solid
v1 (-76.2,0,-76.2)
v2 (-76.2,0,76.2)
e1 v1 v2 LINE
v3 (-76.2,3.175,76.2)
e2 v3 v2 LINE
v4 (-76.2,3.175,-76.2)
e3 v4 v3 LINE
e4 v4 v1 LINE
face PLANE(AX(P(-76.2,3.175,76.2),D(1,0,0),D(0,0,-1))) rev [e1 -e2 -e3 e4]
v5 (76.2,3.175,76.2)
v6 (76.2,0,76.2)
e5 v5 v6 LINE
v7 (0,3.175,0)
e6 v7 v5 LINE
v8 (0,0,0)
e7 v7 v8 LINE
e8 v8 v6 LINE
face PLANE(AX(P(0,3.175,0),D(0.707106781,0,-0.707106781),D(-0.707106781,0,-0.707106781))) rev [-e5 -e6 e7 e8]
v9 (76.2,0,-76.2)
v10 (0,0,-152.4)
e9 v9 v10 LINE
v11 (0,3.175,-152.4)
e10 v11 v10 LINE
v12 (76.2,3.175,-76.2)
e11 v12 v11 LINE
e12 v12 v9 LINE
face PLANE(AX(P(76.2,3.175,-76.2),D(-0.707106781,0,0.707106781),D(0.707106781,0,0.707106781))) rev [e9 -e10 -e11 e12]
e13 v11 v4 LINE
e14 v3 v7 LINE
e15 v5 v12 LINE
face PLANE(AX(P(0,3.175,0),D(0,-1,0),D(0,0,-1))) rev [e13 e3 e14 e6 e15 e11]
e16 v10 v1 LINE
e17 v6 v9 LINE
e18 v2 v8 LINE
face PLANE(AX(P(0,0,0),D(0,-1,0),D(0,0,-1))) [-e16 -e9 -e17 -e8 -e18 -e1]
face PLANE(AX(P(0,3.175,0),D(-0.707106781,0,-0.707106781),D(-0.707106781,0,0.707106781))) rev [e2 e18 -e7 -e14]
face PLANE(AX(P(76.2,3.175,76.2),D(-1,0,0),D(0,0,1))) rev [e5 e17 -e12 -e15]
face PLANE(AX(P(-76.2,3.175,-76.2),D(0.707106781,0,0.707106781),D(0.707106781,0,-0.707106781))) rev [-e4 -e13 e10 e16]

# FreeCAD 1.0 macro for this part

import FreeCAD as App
import Part
import Sketcher

V = App.Vector
Q = App.Units.Quantity


def add_polygon(sketch, points):
    """Adds a closed chain of lines whose ends are joined by coincident constraints."""
    first, n = sketch.GeometryCount, len(points)
    for a, b in zip(points, points[1:] + points[:1]):
        sketch.addGeometry(Part.LineSegment(App.Vector(*a, 0), App.Vector(*b, 0)), False)
    for i in range(n):
        sketch.addConstraint(Sketcher.Constraint("Coincident", first + i, 2, first + (i + 1) % n, 1))

doc = App.newDocument("Part")
body = doc.addObject("PartDesign::Body", "Body")

# Sketch on XZ plane
sketch1 = doc.addObject("Sketcher::SketchObject", "Sketch")
body.addObject(sketch1)
sketch1.AttachmentSupport = (doc.XZ_Plane, [""])
sketch1.MapMode = "FlatFace"
add_polygon(sketch1, [(0, 0), (76.2, 76.2), (76.2, -76.2), (0, -152.4), (-76.2, -76.2), (-76.2, 76.2)])  # lines 0-5
sketch1.addConstraint([
    Sketcher.Constraint("Vertical", 1),
    Sketcher.Constraint("Vertical", 4),
    Sketcher.Constraint("Coincident", 5, 2, -1, 1),
    Sketcher.Constraint("Symmetric", 0, 2, 3, 2, -1, 1),
    Sketcher.Constraint("PointOnObject", 2, 2, -2),
    Sketcher.Constraint("Parallel", 0, 2),
    Sketcher.Constraint("Perpendicular", 2, 3),
    Sketcher.Constraint("Parallel", 3, 5),
    Sketcher.Constraint("Horizontal", 1, 2, 3, 2),
    Sketcher.Constraint("DistanceY", 1, 2, 1, 1, Q("6 in")),
])
pad1 = doc.addObject("PartDesign::Pad", "Pad")
body.addObject(pad1)
pad1.Profile = sketch1
pad1.Length = Q("0.125 in")
pad1.Reversed = True

doc.recompute()
